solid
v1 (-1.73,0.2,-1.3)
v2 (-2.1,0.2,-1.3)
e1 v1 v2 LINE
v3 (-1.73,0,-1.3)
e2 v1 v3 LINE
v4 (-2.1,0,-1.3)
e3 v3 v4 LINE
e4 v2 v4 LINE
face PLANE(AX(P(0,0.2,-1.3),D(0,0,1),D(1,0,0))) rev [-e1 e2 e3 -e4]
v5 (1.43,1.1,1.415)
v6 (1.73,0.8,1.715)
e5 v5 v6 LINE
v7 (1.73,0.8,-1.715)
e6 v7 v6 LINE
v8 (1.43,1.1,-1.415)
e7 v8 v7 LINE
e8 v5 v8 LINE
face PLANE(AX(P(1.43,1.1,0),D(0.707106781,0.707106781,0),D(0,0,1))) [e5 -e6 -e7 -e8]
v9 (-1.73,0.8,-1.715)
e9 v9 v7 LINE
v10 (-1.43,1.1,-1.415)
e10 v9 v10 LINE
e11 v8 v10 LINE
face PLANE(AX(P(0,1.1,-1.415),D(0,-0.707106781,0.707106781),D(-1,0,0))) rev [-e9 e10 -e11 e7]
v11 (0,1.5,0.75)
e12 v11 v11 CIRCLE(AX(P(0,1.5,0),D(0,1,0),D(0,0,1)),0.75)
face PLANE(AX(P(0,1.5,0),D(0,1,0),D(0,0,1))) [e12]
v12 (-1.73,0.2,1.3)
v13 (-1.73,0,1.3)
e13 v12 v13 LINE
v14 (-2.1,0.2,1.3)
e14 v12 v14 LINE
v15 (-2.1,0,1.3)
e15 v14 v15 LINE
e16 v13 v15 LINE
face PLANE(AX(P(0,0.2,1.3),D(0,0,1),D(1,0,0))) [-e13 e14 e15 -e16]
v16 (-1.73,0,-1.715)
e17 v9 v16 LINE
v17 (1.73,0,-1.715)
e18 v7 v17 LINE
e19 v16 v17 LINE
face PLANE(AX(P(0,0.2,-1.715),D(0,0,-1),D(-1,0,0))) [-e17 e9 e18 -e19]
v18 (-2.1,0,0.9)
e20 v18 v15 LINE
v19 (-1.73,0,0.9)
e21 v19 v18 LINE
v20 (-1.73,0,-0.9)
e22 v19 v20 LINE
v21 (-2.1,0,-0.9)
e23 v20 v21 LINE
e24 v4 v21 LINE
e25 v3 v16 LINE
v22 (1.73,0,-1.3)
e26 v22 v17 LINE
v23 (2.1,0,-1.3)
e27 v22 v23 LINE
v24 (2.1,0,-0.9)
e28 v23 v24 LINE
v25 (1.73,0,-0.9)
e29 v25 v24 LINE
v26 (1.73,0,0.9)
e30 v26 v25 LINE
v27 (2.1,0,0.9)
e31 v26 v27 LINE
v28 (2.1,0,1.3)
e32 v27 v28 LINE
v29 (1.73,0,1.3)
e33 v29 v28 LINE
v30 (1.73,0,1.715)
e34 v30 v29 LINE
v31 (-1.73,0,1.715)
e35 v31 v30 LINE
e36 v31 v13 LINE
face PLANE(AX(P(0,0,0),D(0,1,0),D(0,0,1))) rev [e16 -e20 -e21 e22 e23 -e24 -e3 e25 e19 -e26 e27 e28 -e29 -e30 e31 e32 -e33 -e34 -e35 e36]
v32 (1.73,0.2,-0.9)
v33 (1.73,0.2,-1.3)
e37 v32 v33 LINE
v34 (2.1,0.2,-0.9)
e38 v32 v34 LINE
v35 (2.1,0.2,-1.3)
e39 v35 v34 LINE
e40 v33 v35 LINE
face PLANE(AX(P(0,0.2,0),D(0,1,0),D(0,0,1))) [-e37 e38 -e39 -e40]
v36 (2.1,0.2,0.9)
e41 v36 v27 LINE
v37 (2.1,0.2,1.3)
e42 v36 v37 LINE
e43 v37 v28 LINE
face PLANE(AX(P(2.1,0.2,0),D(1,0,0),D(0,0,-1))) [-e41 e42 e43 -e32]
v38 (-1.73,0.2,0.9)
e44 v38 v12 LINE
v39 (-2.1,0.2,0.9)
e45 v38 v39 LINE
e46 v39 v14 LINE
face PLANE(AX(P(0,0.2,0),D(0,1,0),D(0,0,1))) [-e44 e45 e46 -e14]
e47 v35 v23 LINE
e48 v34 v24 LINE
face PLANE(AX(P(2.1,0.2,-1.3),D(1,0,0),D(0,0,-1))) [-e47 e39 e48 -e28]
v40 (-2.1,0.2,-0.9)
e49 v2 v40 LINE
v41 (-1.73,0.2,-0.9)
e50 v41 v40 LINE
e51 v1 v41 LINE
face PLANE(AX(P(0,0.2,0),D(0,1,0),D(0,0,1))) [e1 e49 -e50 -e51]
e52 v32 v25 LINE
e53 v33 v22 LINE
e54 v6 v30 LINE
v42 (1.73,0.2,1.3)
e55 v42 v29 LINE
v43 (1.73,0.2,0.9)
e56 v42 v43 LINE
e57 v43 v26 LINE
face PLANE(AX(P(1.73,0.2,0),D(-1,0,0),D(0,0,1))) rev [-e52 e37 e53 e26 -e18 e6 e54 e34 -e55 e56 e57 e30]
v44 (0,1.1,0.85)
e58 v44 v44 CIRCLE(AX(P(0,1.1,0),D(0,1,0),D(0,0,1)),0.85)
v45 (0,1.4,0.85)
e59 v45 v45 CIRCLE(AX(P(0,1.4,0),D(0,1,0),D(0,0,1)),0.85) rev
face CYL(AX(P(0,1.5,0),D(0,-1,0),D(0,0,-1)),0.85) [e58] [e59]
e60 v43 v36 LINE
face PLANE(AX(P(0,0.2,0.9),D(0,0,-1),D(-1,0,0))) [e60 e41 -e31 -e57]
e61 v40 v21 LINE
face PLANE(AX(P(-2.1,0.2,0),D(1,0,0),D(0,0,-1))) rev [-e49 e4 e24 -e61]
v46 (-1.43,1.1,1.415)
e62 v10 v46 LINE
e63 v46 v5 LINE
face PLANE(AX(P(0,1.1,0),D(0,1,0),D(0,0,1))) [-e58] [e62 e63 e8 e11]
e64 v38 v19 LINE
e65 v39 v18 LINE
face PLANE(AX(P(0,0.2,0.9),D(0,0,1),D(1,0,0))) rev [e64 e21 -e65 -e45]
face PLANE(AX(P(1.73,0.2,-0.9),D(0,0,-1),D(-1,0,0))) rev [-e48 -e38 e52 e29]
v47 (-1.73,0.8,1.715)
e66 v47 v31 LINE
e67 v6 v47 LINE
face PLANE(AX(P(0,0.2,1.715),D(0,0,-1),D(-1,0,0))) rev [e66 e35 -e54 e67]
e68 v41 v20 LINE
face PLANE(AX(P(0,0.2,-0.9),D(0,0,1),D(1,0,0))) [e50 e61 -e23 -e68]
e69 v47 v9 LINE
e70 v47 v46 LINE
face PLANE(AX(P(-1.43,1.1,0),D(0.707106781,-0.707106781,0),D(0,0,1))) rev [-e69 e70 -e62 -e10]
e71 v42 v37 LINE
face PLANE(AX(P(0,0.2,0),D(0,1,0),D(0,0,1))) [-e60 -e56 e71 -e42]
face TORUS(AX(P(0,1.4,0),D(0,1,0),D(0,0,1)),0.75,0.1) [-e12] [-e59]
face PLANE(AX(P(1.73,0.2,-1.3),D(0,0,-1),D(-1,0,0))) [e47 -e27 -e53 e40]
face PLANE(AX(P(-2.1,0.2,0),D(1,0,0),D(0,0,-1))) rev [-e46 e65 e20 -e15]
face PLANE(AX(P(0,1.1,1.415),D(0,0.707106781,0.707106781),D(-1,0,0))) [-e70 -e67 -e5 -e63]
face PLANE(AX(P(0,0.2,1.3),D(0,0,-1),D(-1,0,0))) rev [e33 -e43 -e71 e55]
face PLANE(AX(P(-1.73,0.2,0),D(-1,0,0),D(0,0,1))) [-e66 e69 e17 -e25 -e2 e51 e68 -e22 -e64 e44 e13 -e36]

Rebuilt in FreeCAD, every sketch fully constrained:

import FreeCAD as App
import Part
import Sketcher

V = App.Vector


def edges_at(feature, points):
    """Names of the edges that pass closest to the given points."""
    edges = feature.Shape.Edges
    near = lambda p: min(range(len(edges)), key=lambda i: edges[i].distToShape(Part.Vertex(*p))[0])
    return sorted({f"Edge{near(p) + 1}" for p in points})


def add_polygon(sketch, points):
    """Adds a closed chain of lines whose ends are joined by coincident constraints."""
    first, n = sketch.GeometryCount, len(points)
    for a, b in zip(points, points[1:] + points[:1]):
        sketch.addGeometry(Part.LineSegment(App.Vector(*a, 0), App.Vector(*b, 0)), False)
    for i in range(n):
        sketch.addConstraint(Sketcher.Constraint("Coincident", first + i, 2, first + (i + 1) % n, 1))

doc = App.newDocument("Part")
body = doc.addObject("PartDesign::Body", "Body")

sketch1 = doc.addObject("Sketcher::SketchObject", "Sketch")
body.addObject(sketch1)
sketch1.AttachmentSupport = (doc.XZ_Plane, [""])
sketch1.MapMode = "FlatFace"
add_polygon(sketch1, [(-1.73, 1.3), (-1.73, 1.72), (1.73, 1.72), (1.73, 1.3), (2.1, 1.3), (2.1, 0.9), (1.73, 0.9), (1.73, -0.9), (2.1, -0.9), (2.1, -1.3), (1.73, -1.3), (1.73, -1.72), (-1.73, -1.72), (-1.73, -1.3), (-2.1, -1.3), (-2.1, -0.9), (-1.73, -0.9), (-1.73, 0.9), (-2.1, 0.9), (-2.1, 1.3)])
sketch1.addConstraint(Sketcher.Constraint("Vertical", 0))
sketch1.addConstraint(Sketcher.Constraint("Horizontal", 1))
sketch1.addConstraint(Sketcher.Constraint("Vertical", 2))
sketch1.addConstraint(Sketcher.Constraint("Horizontal", 3))
sketch1.addConstraint(Sketcher.Constraint("Vertical", 4))
sketch1.addConstraint(Sketcher.Constraint("Horizontal", 5))
sketch1.addConstraint(Sketcher.Constraint("Vertical", 6))
sketch1.addConstraint(Sketcher.Constraint("Horizontal", 7))
sketch1.addConstraint(Sketcher.Constraint("Vertical", 8))
sketch1.addConstraint(Sketcher.Constraint("Horizontal", 9))
sketch1.addConstraint(Sketcher.Constraint("Vertical", 10))
sketch1.addConstraint(Sketcher.Constraint("Horizontal", 11))
sketch1.addConstraint(Sketcher.Constraint("Vertical", 12))
sketch1.addConstraint(Sketcher.Constraint("Horizontal", 13))
sketch1.addConstraint(Sketcher.Constraint("Vertical", 14))
sketch1.addConstraint(Sketcher.Constraint("Horizontal", 15))
sketch1.addConstraint(Sketcher.Constraint("Vertical", 16))
sketch1.addConstraint(Sketcher.Constraint("Horizontal", 17))
sketch1.addConstraint(Sketcher.Constraint("Vertical", 18))
sketch1.addConstraint(Sketcher.Constraint("Horizontal", 19))
sketch1.addConstraint(Sketcher.Constraint("Symmetric", 0, 2, 10, 2, -1, 1))
sketch1.addConstraint(Sketcher.Constraint("Symmetric", 2, 2, 12, 2, -1, 1))
sketch1.addConstraint(Sketcher.Constraint("Symmetric", 4, 2, 14, 2, -1, 1))
sketch1.addConstraint(Sketcher.Constraint("Symmetric", 6, 2, 16, 2, -1, 1))
sketch1.addConstraint(Sketcher.Constraint("Symmetric", 8, 2, 18, 2, -1, 1))
sketch1.addConstraint(Sketcher.Constraint("Symmetric", 9, 2, 12, 2, -2))
sketch1.addConstraint(Sketcher.Constraint("Symmetric", 7, 2, 14, 2, -2))
sketch1.addConstraint(Sketcher.Constraint("Vertical", 2, 2, 5, 2))
sketch1.addConstraint(Sketcher.Constraint("DistanceY", 4, 2, 4, 1, 0.4))
sketch1.addConstraint(Sketcher.Constraint("DistanceY", 6, 2, 6, 1, 1.8))
sketch1.addConstraint(Sketcher.Constraint("DistanceX", 1, 1, 1, 2, 3.46))
sketch1.addConstraint(Sketcher.Constraint("DistanceX", 3, 1, 3, 2, 0.37))
sketch1.addConstraint(Sketcher.Constraint("DistanceY", 0, 1, 0, 2, 0.415))
pad1 = doc.addObject("PartDesign::Pad", "Pad")
body.addObject(pad1)
pad1.Profile = sketch1
pad1.Length = 0.2
pad1.Reversed = True

sketch2 = doc.addObject("Sketcher::SketchObject", "Sketch001")
body.addObject(sketch2)
sketch2.AttachmentSupport = (doc.XZ_Plane, [""])
sketch2.MapMode = "FlatFace"
sketch2.AttachmentOffset = App.Placement(V(0, 0, -0.2), App.Rotation())
add_polygon(sketch2, [(-1.7, -1.7), (-1.7, 1.7), (1.7, 1.7), (1.7, -1.7)])
sketch2.addConstraint(Sketcher.Constraint("Vertical", 0))
sketch2.addConstraint(Sketcher.Constraint("Horizontal", 1))
sketch2.addConstraint(Sketcher.Constraint("Vertical", 2))
sketch2.addConstraint(Sketcher.Constraint("Horizontal", 3))
sketch2.addConstraint(Sketcher.Constraint("Symmetric", 0, 2, 2, 2, -1, 1))
sketch2.addConstraint(Sketcher.Constraint("DistanceX", 1, 1, 1, 2, 3.46))
sketch2.addConstraint(Sketcher.Constraint("DistanceY", 0, 1, 0, 2, 3.43))
pad2 = doc.addObject("PartDesign::Pad", "Pad001")
body.addObject(pad2)
pad2.Profile = sketch2
pad2.Length = 0.9
pad2.Reversed = True
doc.recompute()

chamfer = doc.addObject("PartDesign::Chamfer", "Chamfer")
body.addObject(chamfer)
chamfer.Base = (pad2, edges_at(pad2, [
    (-1.73, 1.1, 0),
    (0, 1.1, 1.715),
    (1.73, 1.1, 0),
    (0, 1.1, -1.715),
]))
chamfer.Size = 0.3

sketch3 = doc.addObject("Sketcher::SketchObject", "Sketch002")
body.addObject(sketch3)
sketch3.AttachmentSupport = (doc.XZ_Plane, [""])
sketch3.MapMode = "FlatFace"
sketch3.AttachmentOffset = App.Placement(V(0, 0, -1.1), App.Rotation())
sketch3.addGeometry(Part.Circle(V(0, 0, 0), V(0, 0, 1), 0.8), False)
sketch3.addConstraint(Sketcher.Constraint("Coincident", 0, 3, -1, 1))
sketch3.addConstraint(Sketcher.Constraint("Diameter", 0, 1.7))
pad3 = doc.addObject("PartDesign::Pad", "Pad002")
body.addObject(pad3)
pad3.Profile = sketch3
pad3.Length = 0.4
pad3.Reversed = True
doc.recompute()

fillet = doc.addObject("PartDesign::Fillet", "Fillet")
body.addObject(fillet)
fillet.Base = (pad3, edges_at(pad3, [(0, 1.5, -0.85)]))
fillet.Radius = 0.1

doc.recompute()
